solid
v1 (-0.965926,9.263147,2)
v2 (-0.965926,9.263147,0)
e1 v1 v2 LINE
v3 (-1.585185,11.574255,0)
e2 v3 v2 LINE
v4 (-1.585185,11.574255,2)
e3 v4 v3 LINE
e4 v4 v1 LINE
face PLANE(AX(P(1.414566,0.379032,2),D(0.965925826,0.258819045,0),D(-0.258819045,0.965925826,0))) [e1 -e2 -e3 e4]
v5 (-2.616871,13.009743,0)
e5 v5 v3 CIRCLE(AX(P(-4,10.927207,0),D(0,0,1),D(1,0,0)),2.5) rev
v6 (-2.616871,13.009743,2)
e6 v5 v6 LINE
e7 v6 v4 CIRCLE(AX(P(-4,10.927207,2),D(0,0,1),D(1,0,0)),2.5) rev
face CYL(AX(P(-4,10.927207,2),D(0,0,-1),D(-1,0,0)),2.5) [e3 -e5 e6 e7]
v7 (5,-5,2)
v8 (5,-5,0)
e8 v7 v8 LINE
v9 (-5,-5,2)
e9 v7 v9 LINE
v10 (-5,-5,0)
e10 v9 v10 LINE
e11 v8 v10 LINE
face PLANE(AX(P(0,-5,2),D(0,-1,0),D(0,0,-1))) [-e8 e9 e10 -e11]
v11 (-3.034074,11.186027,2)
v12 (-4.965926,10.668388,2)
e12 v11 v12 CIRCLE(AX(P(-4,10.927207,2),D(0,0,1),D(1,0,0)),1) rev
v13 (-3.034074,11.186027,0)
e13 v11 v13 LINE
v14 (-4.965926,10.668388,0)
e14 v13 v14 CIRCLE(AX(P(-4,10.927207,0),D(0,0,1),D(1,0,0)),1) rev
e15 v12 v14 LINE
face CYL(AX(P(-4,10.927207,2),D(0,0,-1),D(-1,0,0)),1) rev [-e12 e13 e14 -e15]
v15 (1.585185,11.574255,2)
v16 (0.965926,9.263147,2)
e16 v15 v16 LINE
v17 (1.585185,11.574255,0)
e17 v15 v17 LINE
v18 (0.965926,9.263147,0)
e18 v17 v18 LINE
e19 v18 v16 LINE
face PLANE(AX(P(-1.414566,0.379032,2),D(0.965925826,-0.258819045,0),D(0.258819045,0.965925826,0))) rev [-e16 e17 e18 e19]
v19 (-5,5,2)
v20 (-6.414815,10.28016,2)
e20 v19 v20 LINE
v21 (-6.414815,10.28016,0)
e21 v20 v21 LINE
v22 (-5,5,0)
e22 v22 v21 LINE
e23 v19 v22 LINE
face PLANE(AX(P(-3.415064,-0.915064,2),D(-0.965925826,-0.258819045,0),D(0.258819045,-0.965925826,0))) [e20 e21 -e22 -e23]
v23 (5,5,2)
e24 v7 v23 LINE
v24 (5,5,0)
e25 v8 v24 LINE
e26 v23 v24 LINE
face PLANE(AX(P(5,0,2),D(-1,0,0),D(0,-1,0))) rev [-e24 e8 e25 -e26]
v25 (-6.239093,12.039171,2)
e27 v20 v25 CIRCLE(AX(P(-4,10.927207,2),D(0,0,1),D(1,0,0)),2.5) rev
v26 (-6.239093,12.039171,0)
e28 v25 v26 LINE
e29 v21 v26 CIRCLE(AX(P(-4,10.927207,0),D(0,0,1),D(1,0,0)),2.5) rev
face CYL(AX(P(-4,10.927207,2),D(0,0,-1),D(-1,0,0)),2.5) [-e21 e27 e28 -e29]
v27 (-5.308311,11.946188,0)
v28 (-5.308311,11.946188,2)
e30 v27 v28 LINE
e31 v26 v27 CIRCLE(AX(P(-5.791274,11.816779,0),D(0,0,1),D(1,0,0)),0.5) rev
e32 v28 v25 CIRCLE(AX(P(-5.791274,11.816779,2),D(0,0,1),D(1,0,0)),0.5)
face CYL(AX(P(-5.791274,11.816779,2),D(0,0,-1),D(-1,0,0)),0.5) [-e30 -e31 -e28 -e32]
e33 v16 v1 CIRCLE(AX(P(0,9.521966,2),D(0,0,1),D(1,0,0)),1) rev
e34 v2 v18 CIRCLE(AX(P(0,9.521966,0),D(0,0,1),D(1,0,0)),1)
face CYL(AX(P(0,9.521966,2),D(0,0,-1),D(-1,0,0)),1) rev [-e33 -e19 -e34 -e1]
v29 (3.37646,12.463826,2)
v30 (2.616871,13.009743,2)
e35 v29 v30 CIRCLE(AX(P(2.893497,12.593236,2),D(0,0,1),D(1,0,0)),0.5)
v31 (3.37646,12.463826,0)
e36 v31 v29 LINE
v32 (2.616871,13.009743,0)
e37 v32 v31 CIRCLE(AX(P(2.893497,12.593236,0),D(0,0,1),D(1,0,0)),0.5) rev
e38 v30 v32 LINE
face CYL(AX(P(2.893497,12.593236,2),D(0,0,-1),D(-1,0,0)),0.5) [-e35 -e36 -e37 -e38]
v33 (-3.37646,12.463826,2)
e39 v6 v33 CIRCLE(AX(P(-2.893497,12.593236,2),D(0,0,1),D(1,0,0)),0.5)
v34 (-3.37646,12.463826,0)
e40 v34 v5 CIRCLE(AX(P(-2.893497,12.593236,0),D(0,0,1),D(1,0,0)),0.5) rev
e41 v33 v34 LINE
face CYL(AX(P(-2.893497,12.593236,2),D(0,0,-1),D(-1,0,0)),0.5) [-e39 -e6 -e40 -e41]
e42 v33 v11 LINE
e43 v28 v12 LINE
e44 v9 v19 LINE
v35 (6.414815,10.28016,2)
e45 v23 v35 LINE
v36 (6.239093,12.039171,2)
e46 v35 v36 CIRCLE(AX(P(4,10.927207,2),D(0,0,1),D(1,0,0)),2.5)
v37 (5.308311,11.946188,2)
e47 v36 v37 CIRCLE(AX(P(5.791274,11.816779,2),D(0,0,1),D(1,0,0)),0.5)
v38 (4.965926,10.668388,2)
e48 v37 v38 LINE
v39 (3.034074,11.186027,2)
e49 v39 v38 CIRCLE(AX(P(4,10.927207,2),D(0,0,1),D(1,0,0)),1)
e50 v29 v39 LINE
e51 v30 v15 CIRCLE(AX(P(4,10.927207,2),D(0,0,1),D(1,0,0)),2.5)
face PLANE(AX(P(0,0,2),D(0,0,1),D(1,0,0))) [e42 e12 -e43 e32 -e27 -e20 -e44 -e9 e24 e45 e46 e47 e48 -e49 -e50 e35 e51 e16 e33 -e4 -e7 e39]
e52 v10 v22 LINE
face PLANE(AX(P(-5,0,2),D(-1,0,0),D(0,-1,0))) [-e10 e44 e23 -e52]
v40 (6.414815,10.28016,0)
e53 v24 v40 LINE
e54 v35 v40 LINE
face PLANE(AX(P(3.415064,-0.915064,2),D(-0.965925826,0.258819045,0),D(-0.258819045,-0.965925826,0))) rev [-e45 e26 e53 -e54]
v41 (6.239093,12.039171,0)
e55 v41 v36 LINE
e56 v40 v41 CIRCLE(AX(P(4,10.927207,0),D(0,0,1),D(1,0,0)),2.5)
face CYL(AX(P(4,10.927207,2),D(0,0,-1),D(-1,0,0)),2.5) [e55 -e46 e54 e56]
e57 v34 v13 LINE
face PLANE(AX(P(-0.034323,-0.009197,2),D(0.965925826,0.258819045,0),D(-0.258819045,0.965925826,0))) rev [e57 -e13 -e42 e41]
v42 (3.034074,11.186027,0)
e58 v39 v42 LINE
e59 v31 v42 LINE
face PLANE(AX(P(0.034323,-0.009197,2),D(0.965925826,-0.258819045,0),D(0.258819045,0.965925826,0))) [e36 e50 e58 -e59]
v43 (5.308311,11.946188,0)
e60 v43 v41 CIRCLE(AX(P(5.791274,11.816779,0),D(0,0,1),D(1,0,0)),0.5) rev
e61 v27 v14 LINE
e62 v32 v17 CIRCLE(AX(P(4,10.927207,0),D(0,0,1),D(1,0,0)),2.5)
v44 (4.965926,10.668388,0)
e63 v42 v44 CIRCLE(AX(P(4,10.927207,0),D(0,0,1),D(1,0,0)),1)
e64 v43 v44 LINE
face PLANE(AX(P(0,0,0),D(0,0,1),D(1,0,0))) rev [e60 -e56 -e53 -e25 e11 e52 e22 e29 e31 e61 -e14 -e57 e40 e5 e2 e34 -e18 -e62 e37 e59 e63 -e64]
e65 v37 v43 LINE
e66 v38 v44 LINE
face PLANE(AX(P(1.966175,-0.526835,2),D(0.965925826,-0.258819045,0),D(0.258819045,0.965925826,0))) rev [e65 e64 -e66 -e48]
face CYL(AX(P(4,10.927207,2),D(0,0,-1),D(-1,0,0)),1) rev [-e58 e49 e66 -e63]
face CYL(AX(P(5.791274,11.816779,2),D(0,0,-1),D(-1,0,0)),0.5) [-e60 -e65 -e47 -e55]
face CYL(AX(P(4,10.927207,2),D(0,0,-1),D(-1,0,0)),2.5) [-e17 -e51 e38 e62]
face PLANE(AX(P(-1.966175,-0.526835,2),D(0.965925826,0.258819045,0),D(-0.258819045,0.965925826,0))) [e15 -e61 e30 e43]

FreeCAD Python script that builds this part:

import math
import FreeCAD as App
import Part
import Sketcher
from FreeCAD import Vector
Q = App.Units.Quantity


def edges_at(feature, points):
    """Names of the edges that pass closest to the given points."""
    edges = feature.Shape.Edges
    near = lambda p: min(range(len(edges)), key=lambda i: edges[i].distToShape(Part.Vertex(*p))[0])
    return sorted({f"Edge{near(p) + 1}" for p in points})

doc = App.newDocument("Part")
body = doc.addObject("PartDesign::Body", "Body")

# Sketch on XY plane
sketch1 = body.newObject("Sketcher::SketchObject", "Sketch")
sketch1.AttachmentSupport = (doc.getObject("XY_Plane"), [""])
sketch1.MapMode = "FlatFace"
sketch1.addGeometry([
    Part.LineSegment(Vector(-6.4, 10.3, 0), Vector(-5, 5, 0)),  # 0
    Part.LineSegment(Vector(-5, 5, 0), Vector(-5, -5, 0)),  # 1
    Part.LineSegment(Vector(-5, -5, 0), Vector(5, -5, 0)),  # 2
    Part.LineSegment(Vector(5, -5, 0), Vector(5, 5, 0)),  # 3
    Part.LineSegment(Vector(5, 5, 0), Vector(6.4, 10.3, 0)),  # 4
    Part.ArcOfCircle(Part.Circle(Vector(4, 10.9, 0), Vector(0, 0, 1), 2.5), math.radians(-15), math.radians(51)),  # 5
    Part.LineSegment(Vector(5.6, 12.9, 0), Vector(5, 10.7, 0)),  # 6
    Part.ArcOfCircle(Part.Circle(Vector(4, 10.9, 0), Vector(0, 0, 1), 1), math.radians(165), math.radians(345)),  # 7
    Part.LineSegment(Vector(3, 11.2, 0), Vector(3.6, 13.4, 0)),  # 8
    Part.ArcOfCircle(Part.Circle(Vector(4, 10.9, 0), Vector(0, 0, 1), 2.5), math.radians(99), math.radians(165)),  # 9
    Part.LineSegment(Vector(1.6, 11.6, 0), Vector(0, 5.7, 0)),  # 10
    Part.LineSegment(Vector(0, 5.7, 0), Vector(-1.6, 11.6, 0)),  # 11
    Part.ArcOfCircle(Part.Circle(Vector(-4, 10.9, 0), Vector(0, 0, 1), 2.5), math.radians(15), math.radians(81)),  # 12
    Part.LineSegment(Vector(-3.6, 13.4, 0), Vector(-3, 11.2, 0)),  # 13
    Part.ArcOfCircle(Part.Circle(Vector(-4, 10.9, 0), Vector(0, 0, 1), 1), math.radians(-165), math.radians(15)),  # 14
    Part.LineSegment(Vector(-5, 10.7, 0), Vector(-5.6, 12.9, 0)),  # 15
    Part.ArcOfCircle(Part.Circle(Vector(-4, 10.9, 0), Vector(0, 0, 1), 2.5), math.radians(129), math.radians(195)),  # 16
], False)
sketch1.addConstraint([
    Sketcher.Constraint("Coincident", 0, 2, 1, 1),
    Sketcher.Constraint("Coincident", 1, 2, 2, 1),
    Sketcher.Constraint("Coincident", 2, 2, 3, 1),
    Sketcher.Constraint("Coincident", 3, 2, 4, 1),
    Sketcher.Constraint("Tangent", 4, 2, 5, 1),
    Sketcher.Constraint("Coincident", 5, 2, 6, 1),
    Sketcher.Constraint("Tangent", 6, 2, 7, 2),
    Sketcher.Constraint("Tangent", 7, 1, 8, 1),
    Sketcher.Constraint("Coincident", 8, 2, 9, 1),
    Sketcher.Constraint("Tangent", 9, 2, 10, 1),
    Sketcher.Constraint("Coincident", 10, 2, 11, 1),
    Sketcher.Constraint("Tangent", 11, 2, 12, 1),
    Sketcher.Constraint("Coincident", 12, 2, 13, 1),
    Sketcher.Constraint("Tangent", 13, 2, 14, 2),
    Sketcher.Constraint("Tangent", 14, 1, 15, 1),
    Sketcher.Constraint("Coincident", 15, 2, 16, 1),
    Sketcher.Constraint("Tangent", 16, 2, 0, 1),
    Sketcher.Constraint("Vertical", 1),
    Sketcher.Constraint("Horizontal", 2),
    Sketcher.Constraint("Vertical", 3),
    Sketcher.Constraint("Coincident", 7, 3, 5, 3),
    Sketcher.Constraint("Coincident", 9, 3, 5, 3),
    Sketcher.Constraint("Coincident", 14, 3, 12, 3),
    Sketcher.Constraint("Coincident", 16, 3, 12, 3),
    Sketcher.Constraint("Equal", 5, 9),
    Sketcher.Constraint("Equal", 9, 12),
    Sketcher.Constraint("Equal", 7, 14),
    Sketcher.Constraint("Equal", 12, 16),
    Sketcher.Constraint("Symmetric", 0, 2, 2, 2, -1, 1),
    Sketcher.Constraint("Symmetric", 5, 3, 12, 3, -2),
    Sketcher.Constraint("PointOnObject", 10, 2, -2),
    Sketcher.Constraint("Parallel", 4, 6),
    Sketcher.Constraint("Parallel", 6, 8),
    Sketcher.Constraint("Parallel", 8, 10),
    Sketcher.Constraint("Parallel", 0, 11),
    Sketcher.Constraint("Parallel", 11, 13),
    Sketcher.Constraint("Parallel", 13, 15),
    Sketcher.Constraint("Equal", 2, 1),
    Sketcher.Constraint("Radius", 7, 1.0),
    Sketcher.Constraint("Radius", 5, 2.5),
    Sketcher.Constraint("DistanceX", 2, 1, 2, 2, 10.0),
    Sketcher.Constraint("Angle", 0, Q("-75 deg")),
    Sketcher.Constraint("DistanceX", -1, 1, 5, 3, 4.0),
])
pad1 = body.newObject("PartDesign::Pad", "Pad")
pad1.Profile = sketch1
pad1.Length = 2
doc.recompute()

fillet = body.newObject("PartDesign::Fillet", "Fillet")
fillet.Base = (pad1, edges_at(pad1, [
    (5.559, 12.882, 1),
    (-5.559, 12.882, 1),
    (-3.627, 13.399, 1),
    (3.627, 13.399, 1),
]))
fillet.Radius = 0.5
doc.recompute()

fillet2 = body.newObject("PartDesign::Fillet", "Fillet001")
fillet2.Base = (fillet, edges_at(fillet, [(0, 5.658, 1)]))
fillet2.Radius = 1

doc.recompute()
